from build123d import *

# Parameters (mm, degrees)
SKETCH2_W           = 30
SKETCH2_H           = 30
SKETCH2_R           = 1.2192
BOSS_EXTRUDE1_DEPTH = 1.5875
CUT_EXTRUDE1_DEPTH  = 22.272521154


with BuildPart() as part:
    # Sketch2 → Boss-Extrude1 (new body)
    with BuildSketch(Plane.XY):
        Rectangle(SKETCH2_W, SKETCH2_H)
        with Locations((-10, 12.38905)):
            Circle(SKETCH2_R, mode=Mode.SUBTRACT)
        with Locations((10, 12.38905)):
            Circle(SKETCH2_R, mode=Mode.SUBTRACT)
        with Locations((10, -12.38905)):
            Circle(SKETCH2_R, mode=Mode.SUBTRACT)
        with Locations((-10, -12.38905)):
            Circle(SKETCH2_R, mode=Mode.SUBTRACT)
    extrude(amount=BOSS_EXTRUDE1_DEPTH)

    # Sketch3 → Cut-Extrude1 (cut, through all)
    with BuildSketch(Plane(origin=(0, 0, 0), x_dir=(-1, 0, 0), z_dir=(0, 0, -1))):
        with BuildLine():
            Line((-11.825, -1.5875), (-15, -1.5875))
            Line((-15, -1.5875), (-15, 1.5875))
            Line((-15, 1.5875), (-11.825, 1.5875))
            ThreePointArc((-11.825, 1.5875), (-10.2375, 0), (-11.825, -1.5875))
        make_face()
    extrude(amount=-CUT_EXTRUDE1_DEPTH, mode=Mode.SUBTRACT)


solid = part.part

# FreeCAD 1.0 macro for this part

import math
import FreeCAD as App
import Part
import Sketcher
from FreeCAD import Vector
Q = App.Units.Quantity


def add_polygon(sketch, points):
    """Adds a closed chain of lines whose ends are joined by coincident constraints."""
    first, n = sketch.GeometryCount, len(points)
    for a, b in zip(points, points[1:] + points[:1]):
        sketch.addGeometry(Part.LineSegment(App.Vector(*a, 0), App.Vector(*b, 0)), False)
    for i in range(n):
        sketch.addConstraint(Sketcher.Constraint("Coincident", first + i, 2, first + (i + 1) % n, 1))

doc = App.newDocument("Part")
body = doc.addObject("PartDesign::Body", "Body")

sketch1 = body.newObject("Sketcher::SketchObject", "Sketch")
sketch1.AttachmentSupport = (doc.getObject("XY_Plane"), [""])
sketch1.MapMode = "FlatFace"
add_polygon(sketch1, [(-15, 15), (-15, -15), (15, -15), (15, 15)])
sketch1.addGeometry(Part.Circle(Vector(-10, -12.38905, 0), Vector(0, 0, 1), 1.2192), False)
sketch1.addGeometry(Part.Circle(Vector(10, -12.38905, 0), Vector(0, 0, 1), 1.2192), False)
sketch1.addGeometry(Part.Circle(Vector(-10, 12.38905, 0), Vector(0, 0, 1), 1.2192), False)
sketch1.addGeometry(Part.Circle(Vector(10, 12.38905, 0), Vector(0, 0, 1), 1.2192), False)
sketch1.addConstraint(Sketcher.Constraint("Vertical", 0))
sketch1.addConstraint(Sketcher.Constraint("Horizontal", 1))
sketch1.addConstraint(Sketcher.Constraint("Vertical", 2))
sketch1.addConstraint(Sketcher.Constraint("Horizontal", 3))
sketch1.addConstraint(Sketcher.Constraint("Equal", 4, 5))
sketch1.addConstraint(Sketcher.Constraint("Equal", 5, 6))
sketch1.addConstraint(Sketcher.Constraint("Equal", 6, 7))
sketch1.addConstraint(Sketcher.Constraint("Symmetric", 5, 3, 6, 3, -1, 1))
sketch1.addConstraint(Sketcher.Constraint("Symmetric", 4, 3, 7, 3, -1, 1))
sketch1.addConstraint(Sketcher.Constraint("Symmetric", 0, 2, 2, 2, -1, 1))
sketch1.addConstraint(Sketcher.Constraint("Symmetric", 4, 3, 5, 3, -2))
sketch1.addConstraint(Sketcher.Constraint("Equal", 3, 0))
sketch1.addConstraint(Sketcher.Constraint("Diameter", 4, Q("0.096 in")))
sketch1.addConstraint(Sketcher.Constraint("DistanceX", 1, 1, 1, 2, 30.0))
sketch1.addConstraint(Sketcher.Constraint("DistanceX", 4, 3, -1, 1, 10.0))
sketch1.addConstraint(Sketcher.Constraint("DistanceY", 4, 3, 6, 3, 24.7781))
pad1 = body.newObject("PartDesign::Pad", "Pad")
pad1.Profile = sketch1
pad1.Length = Q("0.0625 in")

sketch2 = body.newObject("Sketcher::SketchObject", "Sketch001")
sketch2.AttachmentSupport = (doc.getObject("XY_Plane"), [""])
sketch2.MapMode = "FlatFace"
sketch2.addGeometry(Part.LineSegment(Vector(15, -1.5875, 0), Vector(11.825, -1.5875, 0)), False)
sketch2.addGeometry(Part.ArcOfCircle(Part.Circle(Vector(11.825, 0, 0), Vector(0, 0, 1), 1.5875), math.radians(90), math.radians(270)), False)
sketch2.addGeometry(Part.LineSegment(Vector(11.825, 1.5875, 0), Vector(15, 1.5875, 0)), False)
sketch2.addGeometry(Part.LineSegment(Vector(15, 1.5875, 0), Vector(15, -1.5875, 0)), False)
sketch2.addConstraint(Sketcher.Constraint("Tangent", 0, 2, 1, 2))
sketch2.addConstraint(Sketcher.Constraint("Tangent", 1, 1, 2, 1))
sketch2.addConstraint(Sketcher.Constraint("Coincident", 2, 2, 3, 1))
sketch2.addConstraint(Sketcher.Constraint("Coincident", 3, 2, 0, 1))
sketch2.addConstraint(Sketcher.Constraint("Horizontal", 0))
sketch2.addConstraint(Sketcher.Constraint("Horizontal", 2))
sketch2.addConstraint(Sketcher.Constraint("Vertical", 3))
sketch2.addConstraint(Sketcher.Constraint("PointOnObject", 1, 3, -1))
sketch2.addConstraint(Sketcher.Constraint("Equal", 2, 3))
sketch2.addConstraint(Sketcher.Constraint("Radius", 1, Q("0.0625 in")))
sketch2.addConstraint(Sketcher.Constraint("DistanceX", -1, 1, 1, 3, 11.825))
pocket1 = body.newObject("PartDesign::Pocket", "Pocket")
pocket1.Profile = sketch2
pocket1.Type = "ThroughAll"
pocket1.Reversed = True

doc.recompute()
